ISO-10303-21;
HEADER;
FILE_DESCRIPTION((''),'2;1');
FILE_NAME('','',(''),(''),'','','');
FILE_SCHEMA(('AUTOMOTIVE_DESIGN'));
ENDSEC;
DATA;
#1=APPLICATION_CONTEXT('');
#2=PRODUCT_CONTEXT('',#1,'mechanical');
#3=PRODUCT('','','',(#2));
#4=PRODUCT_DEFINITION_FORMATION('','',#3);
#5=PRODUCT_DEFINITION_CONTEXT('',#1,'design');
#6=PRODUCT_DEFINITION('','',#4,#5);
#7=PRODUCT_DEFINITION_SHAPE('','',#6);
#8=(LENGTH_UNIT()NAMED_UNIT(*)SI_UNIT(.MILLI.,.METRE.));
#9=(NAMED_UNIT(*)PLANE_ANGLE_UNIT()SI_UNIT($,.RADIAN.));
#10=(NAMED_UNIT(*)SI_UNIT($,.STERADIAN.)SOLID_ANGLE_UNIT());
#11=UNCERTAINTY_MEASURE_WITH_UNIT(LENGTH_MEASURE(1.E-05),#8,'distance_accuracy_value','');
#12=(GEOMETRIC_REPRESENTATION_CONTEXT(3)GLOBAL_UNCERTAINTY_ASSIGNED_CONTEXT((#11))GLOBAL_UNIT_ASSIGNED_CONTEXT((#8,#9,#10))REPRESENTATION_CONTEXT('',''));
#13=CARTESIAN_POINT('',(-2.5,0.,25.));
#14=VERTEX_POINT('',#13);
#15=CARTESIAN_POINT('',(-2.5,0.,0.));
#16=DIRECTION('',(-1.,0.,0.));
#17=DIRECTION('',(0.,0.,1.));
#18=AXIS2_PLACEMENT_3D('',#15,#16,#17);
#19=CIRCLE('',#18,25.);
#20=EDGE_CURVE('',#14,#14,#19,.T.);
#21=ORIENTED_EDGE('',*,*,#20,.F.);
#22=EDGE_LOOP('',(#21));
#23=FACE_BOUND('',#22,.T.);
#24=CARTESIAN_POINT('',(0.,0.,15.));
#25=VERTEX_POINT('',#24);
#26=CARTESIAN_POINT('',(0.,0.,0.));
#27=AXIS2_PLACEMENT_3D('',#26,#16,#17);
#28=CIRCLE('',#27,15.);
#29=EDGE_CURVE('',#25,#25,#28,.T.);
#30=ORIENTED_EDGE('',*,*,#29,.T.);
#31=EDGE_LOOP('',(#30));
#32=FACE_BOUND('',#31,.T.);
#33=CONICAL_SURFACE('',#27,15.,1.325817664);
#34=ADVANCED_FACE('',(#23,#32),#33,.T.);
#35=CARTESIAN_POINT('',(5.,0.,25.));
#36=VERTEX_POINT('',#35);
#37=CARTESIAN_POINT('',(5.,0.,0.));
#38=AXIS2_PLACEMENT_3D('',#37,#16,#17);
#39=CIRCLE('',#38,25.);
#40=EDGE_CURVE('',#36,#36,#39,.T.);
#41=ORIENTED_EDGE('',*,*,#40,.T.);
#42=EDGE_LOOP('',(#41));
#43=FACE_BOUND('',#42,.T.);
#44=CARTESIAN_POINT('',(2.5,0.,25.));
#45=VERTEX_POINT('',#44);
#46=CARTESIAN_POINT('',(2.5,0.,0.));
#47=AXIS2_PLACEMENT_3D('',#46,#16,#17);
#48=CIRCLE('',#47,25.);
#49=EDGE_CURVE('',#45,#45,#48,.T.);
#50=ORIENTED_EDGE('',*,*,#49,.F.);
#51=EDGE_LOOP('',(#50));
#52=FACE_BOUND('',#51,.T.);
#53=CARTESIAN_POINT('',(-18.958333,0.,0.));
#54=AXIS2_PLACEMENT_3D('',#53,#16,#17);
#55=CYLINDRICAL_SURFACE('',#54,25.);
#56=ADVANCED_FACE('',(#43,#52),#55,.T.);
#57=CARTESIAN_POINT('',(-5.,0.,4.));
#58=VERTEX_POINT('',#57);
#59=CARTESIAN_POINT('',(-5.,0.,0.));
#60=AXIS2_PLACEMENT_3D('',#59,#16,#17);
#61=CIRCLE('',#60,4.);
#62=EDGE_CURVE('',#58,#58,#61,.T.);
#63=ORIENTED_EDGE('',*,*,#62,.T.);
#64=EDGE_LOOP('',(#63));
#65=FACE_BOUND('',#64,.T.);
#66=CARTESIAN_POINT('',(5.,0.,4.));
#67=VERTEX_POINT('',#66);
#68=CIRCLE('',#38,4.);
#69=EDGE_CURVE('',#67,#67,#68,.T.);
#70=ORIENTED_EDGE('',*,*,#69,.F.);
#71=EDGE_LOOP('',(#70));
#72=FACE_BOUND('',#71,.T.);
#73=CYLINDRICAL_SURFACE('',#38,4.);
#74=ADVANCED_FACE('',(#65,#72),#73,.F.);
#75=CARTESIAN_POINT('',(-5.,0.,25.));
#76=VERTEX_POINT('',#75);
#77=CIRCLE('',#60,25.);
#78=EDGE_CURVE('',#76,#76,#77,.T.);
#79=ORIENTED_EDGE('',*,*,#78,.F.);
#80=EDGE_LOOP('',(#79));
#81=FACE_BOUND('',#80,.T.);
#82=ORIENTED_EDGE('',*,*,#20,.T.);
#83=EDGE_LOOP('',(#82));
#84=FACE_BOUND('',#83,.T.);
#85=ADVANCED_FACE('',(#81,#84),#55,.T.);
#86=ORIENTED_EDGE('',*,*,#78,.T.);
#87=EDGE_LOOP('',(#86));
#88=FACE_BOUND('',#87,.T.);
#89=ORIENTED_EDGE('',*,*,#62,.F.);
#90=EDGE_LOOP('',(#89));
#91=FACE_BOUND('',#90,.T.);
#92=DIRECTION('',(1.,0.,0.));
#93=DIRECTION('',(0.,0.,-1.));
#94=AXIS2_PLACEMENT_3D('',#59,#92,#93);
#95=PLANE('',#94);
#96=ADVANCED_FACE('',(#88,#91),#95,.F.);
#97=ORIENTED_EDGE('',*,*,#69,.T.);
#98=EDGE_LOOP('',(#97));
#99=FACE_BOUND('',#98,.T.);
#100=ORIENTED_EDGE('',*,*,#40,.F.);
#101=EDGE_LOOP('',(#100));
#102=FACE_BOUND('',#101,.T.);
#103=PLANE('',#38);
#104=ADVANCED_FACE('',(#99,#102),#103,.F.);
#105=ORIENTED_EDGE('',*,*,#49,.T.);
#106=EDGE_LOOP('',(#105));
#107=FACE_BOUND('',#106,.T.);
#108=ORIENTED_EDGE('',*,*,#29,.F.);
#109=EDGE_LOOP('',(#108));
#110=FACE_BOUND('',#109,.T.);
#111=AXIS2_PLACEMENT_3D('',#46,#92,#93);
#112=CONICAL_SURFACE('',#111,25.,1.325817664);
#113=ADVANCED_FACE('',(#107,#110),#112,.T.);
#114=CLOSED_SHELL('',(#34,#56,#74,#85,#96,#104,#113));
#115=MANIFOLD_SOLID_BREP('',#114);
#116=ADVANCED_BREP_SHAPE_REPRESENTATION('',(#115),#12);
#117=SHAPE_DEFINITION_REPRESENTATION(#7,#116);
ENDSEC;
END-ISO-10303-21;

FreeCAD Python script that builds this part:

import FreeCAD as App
import Part
import Sketcher
Q = App.Units.Quantity


def add_polygon(sketch, points):
    """Adds a closed chain of lines whose ends are joined by coincident constraints."""
    first, n = sketch.GeometryCount, len(points)
    for a, b in zip(points, points[1:] + points[:1]):
        sketch.addGeometry(Part.LineSegment(App.Vector(*a, 0), App.Vector(*b, 0)), False)
    for i in range(n):
        sketch.addConstraint(Sketcher.Constraint("Coincident", first + i, 2, first + (i + 1) % n, 1))

doc = App.newDocument("Part")
params = doc.addObject("Spreadsheet::Sheet", "Params")
for row, (alias, value) in enumerate([
    ("sketch1_width", "10 mm"),
    ("sketch1_height", "25 mm"),
    ("sketch1_width2", "2.5 mm"),
    ("revolution_angle", "360 deg"),
    ("sketch2_diameter", "8 mm"),
    ("pocket1_length", "10 mm"),
], start=1):
    params.set(f"A{row}", alias)
    params.set(f"B{row}", "=" + value)
    params.setAlias(f"B{row}", alias)

body = doc.addObject("PartDesign::Body", "Body")

# Sketch on XZ plane
sketch1 = doc.addObject("Sketcher::SketchObject", "Sketch")
body.addObject(sketch1)
sketch1.AttachmentSupport = (doc.XZ_Plane, [""])
sketch1.MapMode = "FlatFace"
add_polygon(sketch1, [(-5, 0), (5, 0), (5, -25), (2.5, -25), (0, -15), (-2.5, -25), (-5, -25)])  # lines 0-6
sketch1.addConstraint([
    Sketcher.Constraint("Horizontal", 0),
    Sketcher.Constraint("Vertical", 1),
    Sketcher.Constraint("Horizontal", 2),
    Sketcher.Constraint("Horizontal", 5),
    Sketcher.Constraint("Vertical", 6),
    Sketcher.Constraint("Symmetric", 0, 2, 6, 2, -1, 1),
    Sketcher.Constraint("Symmetric", 2, 2, 4, 2, -2),
    Sketcher.Constraint("PointOnObject", 3, 2, -2),
    Sketcher.Constraint("DistanceX", 0, 1, 0, 2, Q("10 mm")),
    Sketcher.Constraint("DistanceY", 1, 2, 1, 1, Q("25 mm")),
    Sketcher.Constraint("DistanceX", 2, 2, 2, 1, Q("2.5 mm")),
    Sketcher.Constraint("DistanceY", 3, 2, -1, 1, Q("15 mm")),
])
sketch1.setExpression("Constraints[15]", "Params.sketch1_width")
sketch1.setExpression("Constraints[16]", "Params.sketch1_height")
sketch1.setExpression("Constraints[17]", "Params.sketch1_width2")
revolution = doc.addObject("PartDesign::Revolution", "Revolution")
body.addObject(revolution)
revolution.Profile = sketch1
revolution.ReferenceAxis = (sketch1, ["H_Axis"])
revolution.setExpression("Angle", "Params.revolution_angle")

# Sketch on YZ plane
sketch2 = doc.addObject("Sketcher::SketchObject", "Sketch001")
body.addObject(sketch2)
sketch2.AttachmentSupport = (doc.YZ_Plane, [""])
sketch2.MapMode = "FlatFace"
sketch2.AttachmentOffset = App.Placement(App.Vector(0, 0, -5), App.Rotation())
sketch2.addGeometry(Part.Circle(App.Vector(0, 0, 0), App.Vector(0, 0, 1), 4), False)
sketch2.addConstraint([
    Sketcher.Constraint("Coincident", 0, 3, -1, 1),
    Sketcher.Constraint("Diameter", 0, Q("8 mm")),
])
sketch2.setExpression("Constraints[1]", "Params.sketch2_diameter")
pocket1 = doc.addObject("PartDesign::Pocket", "Pocket")
body.addObject(pocket1)
pocket1.Profile = sketch2
pocket1.setExpression("Length", "Params.pocket1_length")
pocket1.Reversed = True

doc.recompute()
